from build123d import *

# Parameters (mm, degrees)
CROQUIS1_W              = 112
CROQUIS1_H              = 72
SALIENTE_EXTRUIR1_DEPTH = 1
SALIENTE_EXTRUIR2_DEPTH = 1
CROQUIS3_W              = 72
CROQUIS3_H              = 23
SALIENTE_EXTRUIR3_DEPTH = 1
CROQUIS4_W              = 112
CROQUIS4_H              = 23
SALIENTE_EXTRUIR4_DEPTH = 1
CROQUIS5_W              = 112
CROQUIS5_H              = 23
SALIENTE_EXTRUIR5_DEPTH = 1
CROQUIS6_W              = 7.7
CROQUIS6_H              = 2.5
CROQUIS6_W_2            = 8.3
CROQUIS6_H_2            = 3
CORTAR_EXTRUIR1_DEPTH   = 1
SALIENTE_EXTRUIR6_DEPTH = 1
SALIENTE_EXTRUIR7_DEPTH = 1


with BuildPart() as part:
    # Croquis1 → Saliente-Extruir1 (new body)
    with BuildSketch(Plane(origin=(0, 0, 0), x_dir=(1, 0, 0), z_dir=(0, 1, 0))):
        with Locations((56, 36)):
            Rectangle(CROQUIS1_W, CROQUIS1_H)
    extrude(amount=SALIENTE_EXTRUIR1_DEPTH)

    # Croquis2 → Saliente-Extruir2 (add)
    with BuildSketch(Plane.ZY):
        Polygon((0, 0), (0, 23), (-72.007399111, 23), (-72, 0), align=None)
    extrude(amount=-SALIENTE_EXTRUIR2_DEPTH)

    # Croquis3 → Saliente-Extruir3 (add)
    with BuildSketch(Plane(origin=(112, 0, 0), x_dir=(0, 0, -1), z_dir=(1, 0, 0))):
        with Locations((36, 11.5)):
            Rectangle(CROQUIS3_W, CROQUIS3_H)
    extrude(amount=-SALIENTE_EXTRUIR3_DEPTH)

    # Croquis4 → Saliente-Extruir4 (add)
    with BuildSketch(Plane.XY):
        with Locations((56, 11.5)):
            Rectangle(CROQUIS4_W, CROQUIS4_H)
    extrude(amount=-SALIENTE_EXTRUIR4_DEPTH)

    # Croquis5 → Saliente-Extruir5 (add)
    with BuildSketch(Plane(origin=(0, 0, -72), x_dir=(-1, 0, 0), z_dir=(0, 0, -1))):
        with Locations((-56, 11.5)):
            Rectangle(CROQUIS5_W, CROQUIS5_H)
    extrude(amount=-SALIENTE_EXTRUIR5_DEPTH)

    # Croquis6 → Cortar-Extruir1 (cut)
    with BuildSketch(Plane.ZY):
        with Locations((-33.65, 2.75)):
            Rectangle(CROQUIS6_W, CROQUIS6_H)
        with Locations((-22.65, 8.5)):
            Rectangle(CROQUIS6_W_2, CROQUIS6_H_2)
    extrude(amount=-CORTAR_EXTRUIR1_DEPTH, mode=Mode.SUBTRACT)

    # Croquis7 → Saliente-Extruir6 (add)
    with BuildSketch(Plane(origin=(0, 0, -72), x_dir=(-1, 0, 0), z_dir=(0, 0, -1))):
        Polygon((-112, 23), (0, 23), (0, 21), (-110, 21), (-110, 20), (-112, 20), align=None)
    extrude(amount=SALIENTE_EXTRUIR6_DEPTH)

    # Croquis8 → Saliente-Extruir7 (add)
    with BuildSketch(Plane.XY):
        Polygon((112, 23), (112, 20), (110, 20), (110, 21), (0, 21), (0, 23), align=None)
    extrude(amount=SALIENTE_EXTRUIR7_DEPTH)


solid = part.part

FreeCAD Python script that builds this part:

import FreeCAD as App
import Part
import Sketcher
from FreeCAD import Vector
Q = App.Units.Quantity

doc = App.newDocument("Part")
params = doc.addObject("Spreadsheet::Sheet", "Params")
for row, (alias, value) in enumerate([
    ("sketch1_width", "112 mm"),
    ("sketch1_height", "72 mm"),
    ("pad1_length", "1 mm"),
    ("sketch2_width", "23 mm"),
    ("sketch2_height", "72 mm"),
    ("pad2_length", "1 mm"),
    ("sketch3_width", "23 mm"),
    ("sketch3_height", "72 mm"),
    ("pad3_length", "1 mm"),
    ("sketch4_width", "112 mm"),
    ("sketch4_height", "23 mm"),
    ("pad4_length", "1 mm"),
    ("sketch5_width", "112 mm"),
    ("sketch5_height", "23 mm"),
    ("pad5_length", "1 mm"),
    ("sketch6_width", "3 mm"),
    ("sketch6_width2", "2.5 mm"),
    ("sketch6_height", "7.7 mm"),
    ("sketch6_height2", "8.3 mm"),
    ("pocket1_length", "1 mm"),
    ("sketch7_width", "112 mm"),
    ("sketch7_width2", "2 mm"),
    ("sketch7_height", "3 mm"),
    ("pad6_length", "1 mm"),
    ("sketch8_width", "112 mm"),
    ("sketch8_width2", "110 mm"),
    ("sketch8_height", "3 mm"),
    ("pad7_length", "1 mm"),
], start=1):
    params.set(f"A{row}", alias)
    params.set(f"B{row}", "=" + value)
    params.setAlias(f"B{row}", alias)

body = doc.addObject("PartDesign::Body", "Body")

# Sketch on XZ plane
sketch1 = body.newObject("Sketcher::SketchObject", "Sketch")
sketch1.AttachmentSupport = (doc.getObject("XZ_Plane"), [""])
sketch1.MapMode = "FlatFace"
sketch1.addGeometry([
    Part.LineSegment(Vector(0, -72, 0), Vector(0, 0, 0)),
    Part.LineSegment(Vector(0, 0, 0), Vector(112, 0, 0)),
    Part.LineSegment(Vector(112, 0, 0), Vector(112, -72, 0)),
    Part.LineSegment(Vector(112, -72, 0), Vector(0, -72, 0)),
], False)
sketch1.addConstraint([
    Sketcher.Constraint("Coincident", 0, 2, 1, 1),
    Sketcher.Constraint("Coincident", 1, 2, 2, 1),
    Sketcher.Constraint("Coincident", 2, 2, 3, 1),
    Sketcher.Constraint("Coincident", 3, 2, 0, 1),
    Sketcher.Constraint("Vertical", 0),
    Sketcher.Constraint("Horizontal", 1),
    Sketcher.Constraint("Vertical", 2),
    Sketcher.Constraint("Horizontal", 3),
    Sketcher.Constraint("Coincident", 0, 2, -1, 1),
    Sketcher.Constraint("DistanceX", 1, 1, 1, 2, Q("112 mm")),
    Sketcher.Constraint("DistanceY", 0, 1, 0, 2, Q("72 mm")),
])
sketch1.setExpression("Constraints[9]", "Params.sketch1_width")
sketch1.setExpression("Constraints[10]", "Params.sketch1_height")
pad1 = body.newObject("PartDesign::Pad", "Pad")
pad1.Profile = sketch1
pad1.setExpression("Length", "Params.pad1_length")
pad1.Reversed = True

# Sketch on YZ plane
sketch2 = body.newObject("Sketcher::SketchObject", "Sketch001")
sketch2.AttachmentSupport = (doc.getObject("YZ_Plane"), [""])
sketch2.MapMode = "FlatFace"
sketch2.addGeometry([
    Part.LineSegment(Vector(0, 0, 0), Vector(23, 0, 0)),
    Part.LineSegment(Vector(23, 0, 0), Vector(23, -72, 0)),
    Part.LineSegment(Vector(23, -72, 0), Vector(0, -72, 0)),
    Part.LineSegment(Vector(0, -72, 0), Vector(0, 0, 0)),
], False)
sketch2.addConstraint([
    Sketcher.Constraint("Coincident", 0, 2, 1, 1),
    Sketcher.Constraint("Coincident", 1, 2, 2, 1),
    Sketcher.Constraint("Coincident", 2, 2, 3, 1),
    Sketcher.Constraint("Coincident", 3, 2, 0, 1),
    Sketcher.Constraint("Horizontal", 0),
    Sketcher.Constraint("Vertical", 1),
    Sketcher.Constraint("Vertical", 3),
    Sketcher.Constraint("Coincident", 3, 2, -1, 1),
    Sketcher.Constraint("DistanceX", 0, 1, 0, 2, Q("23 mm")),
    Sketcher.Constraint("DistanceY", 3, 1, 3, 2, Q("72 mm")),
    Sketcher.Constraint("DistanceY", 1, 2, 1, 1, Q("72.007399 mm")),
])
sketch2.setExpression("Constraints[8]", "Params.sketch2_width")
sketch2.setExpression("Constraints[9]", "Params.sketch2_height")
pad2 = body.newObject("PartDesign::Pad", "Pad001")
pad2.Profile = sketch2
pad2.setExpression("Length", "Params.pad2_length")

# Sketch on YZ plane
sketch3 = body.newObject("Sketcher::SketchObject", "Sketch002")
sketch3.AttachmentSupport = (doc.getObject("YZ_Plane"), [""])
sketch3.MapMode = "FlatFace"
sketch3.AttachmentOffset = App.Placement(Vector(0, 0, 112), App.Rotation())
sketch3.addGeometry([
    Part.LineSegment(Vector(23, 0, 0), Vector(0, 0, 0)),
    Part.LineSegment(Vector(0, 0, 0), Vector(0, -72, 0)),
    Part.LineSegment(Vector(0, -72, 0), Vector(23, -72, 0)),
    Part.LineSegment(Vector(23, -72, 0), Vector(23, 0, 0)),
], False)
sketch3.addConstraint([
    Sketcher.Constraint("Coincident", 0, 2, 1, 1),
    Sketcher.Constraint("Coincident", 1, 2, 2, 1),
    Sketcher.Constraint("Coincident", 2, 2, 3, 1),
    Sketcher.Constraint("Coincident", 3, 2, 0, 1),
    Sketcher.Constraint("Horizontal", 0),
    Sketcher.Constraint("Vertical", 1),
    Sketcher.Constraint("Horizontal", 2),
    Sketcher.Constraint("Vertical", 3),
    Sketcher.Constraint("Coincident", 0, 2, -1, 1),
    Sketcher.Constraint("DistanceX", 0, 2, 0, 1, Q("23 mm")),
    Sketcher.Constraint("DistanceY", 1, 2, 1, 1, Q("72 mm")),
])
sketch3.setExpression("Constraints[9]", "Params.sketch3_width")
sketch3.setExpression("Constraints[10]", "Params.sketch3_height")
pad3 = body.newObject("PartDesign::Pad", "Pad002")
pad3.Profile = sketch3
pad3.setExpression("Length", "Params.pad3_length")
pad3.Reversed = True

# Sketch on XY plane
sketch4 = body.newObject("Sketcher::SketchObject", "Sketch003")
sketch4.AttachmentSupport = (doc.getObject("XY_Plane"), [""])
sketch4.MapMode = "FlatFace"
sketch4.addGeometry([
    Part.LineSegment(Vector(0, 23, 0), Vector(0, 0, 0)),
    Part.LineSegment(Vector(0, 0, 0), Vector(112, 0, 0)),
    Part.LineSegment(Vector(112, 0, 0), Vector(112, 23, 0)),
    Part.LineSegment(Vector(112, 23, 0), Vector(0, 23, 0)),
], False)
sketch4.addConstraint([
    Sketcher.Constraint("Coincident", 0, 2, 1, 1),
    Sketcher.Constraint("Coincident", 1, 2, 2, 1),
    Sketcher.Constraint("Coincident", 2, 2, 3, 1),
    Sketcher.Constraint("Coincident", 3, 2, 0, 1),
    Sketcher.Constraint("Vertical", 0),
    Sketcher.Constraint("Horizontal", 1),
    Sketcher.Constraint("Vertical", 2),
    Sketcher.Constraint("Horizontal", 3),
    Sketcher.Constraint("Coincident", 0, 2, -1, 1),
    Sketcher.Constraint("DistanceX", 1, 1, 1, 2, Q("112 mm")),
    Sketcher.Constraint("DistanceY", 0, 2, 0, 1, Q("23 mm")),
])
sketch4.setExpression("Constraints[9]", "Params.sketch4_width")
sketch4.setExpression("Constraints[10]", "Params.sketch4_height")
pad4 = body.newObject("PartDesign::Pad", "Pad003")
pad4.Profile = sketch4
pad4.setExpression("Length", "Params.pad4_length")
pad4.Reversed = True

# Sketch on XY plane
sketch5 = body.newObject("Sketcher::SketchObject", "Sketch004")
sketch5.AttachmentSupport = (doc.getObject("XY_Plane"), [""])
sketch5.MapMode = "FlatFace"
sketch5.AttachmentOffset = App.Placement(Vector(0, 0, -72), App.Rotation())
sketch5.addGeometry([
    Part.LineSegment(Vector(112, 23, 0), Vector(112, 0, 0)),
    Part.LineSegment(Vector(112, 0, 0), Vector(0, 0, 0)),
    Part.LineSegment(Vector(0, 0, 0), Vector(0, 23, 0)),
    Part.LineSegment(Vector(0, 23, 0), Vector(112, 23, 0)),
], False)
sketch5.addConstraint([
    Sketcher.Constraint("Coincident", 0, 2, 1, 1),
    Sketcher.Constraint("Coincident", 1, 2, 2, 1),
    Sketcher.Constraint("Coincident", 2, 2, 3, 1),
    Sketcher.Constraint("Coincident", 3, 2, 0, 1),
    Sketcher.Constraint("Vertical", 0),
    Sketcher.Constraint("Horizontal", 1),
    Sketcher.Constraint("Vertical", 2),
    Sketcher.Constraint("Horizontal", 3),
    Sketcher.Constraint("Coincident", 1, 2, -1, 1),
    Sketcher.Constraint("DistanceX", 1, 2, 1, 1, Q("112 mm")),
    Sketcher.Constraint("DistanceY", 0, 2, 0, 1, Q("23 mm")),
])
sketch5.setExpression("Constraints[9]", "Params.sketch5_width")
sketch5.setExpression("Constraints[10]", "Params.sketch5_height")
pad5 = body.newObject("PartDesign::Pad", "Pad004")
pad5.Profile = sketch5
pad5.setExpression("Length", "Params.pad5_length")

# Sketch on YZ plane
sketch6 = body.newObject("Sketcher::SketchObject", "Sketch005")
sketch6.AttachmentSupport = (doc.getObject("YZ_Plane"), [""])
sketch6.MapMode = "FlatFace"
sketch6.addGeometry([
    Part.LineSegment(Vector(4, -37.5, 0), Vector(1.5, -37.5, 0)),  # 0
    Part.LineSegment(Vector(1.5, -37.5, 0), Vector(1.5, -29.8, 0)),  # 1
    Part.LineSegment(Vector(1.5, -29.8, 0), Vector(4, -29.8, 0)),  # 2
    Part.LineSegment(Vector(4, -29.8, 0), Vector(4, -37.5, 0)),  # 3
    Part.LineSegment(Vector(10, -26.8, 0), Vector(7, -26.8, 0)),  # 4
    Part.LineSegment(Vector(7, -26.8, 0), Vector(7, -18.5, 0)),  # 5
    Part.LineSegment(Vector(7, -18.5, 0), Vector(10, -18.5, 0)),  # 6
    Part.LineSegment(Vector(10, -18.5, 0), Vector(10, -26.8, 0)),  # 7
], False)
sketch6.addConstraint([
    Sketcher.Constraint("Coincident", 0, 2, 1, 1),
    Sketcher.Constraint("Coincident", 1, 2, 2, 1),
    Sketcher.Constraint("Coincident", 2, 2, 3, 1),
    Sketcher.Constraint("Coincident", 3, 2, 0, 1),
    Sketcher.Constraint("Coincident", 4, 2, 5, 1),
    Sketcher.Constraint("Coincident", 5, 2, 6, 1),
    Sketcher.Constraint("Coincident", 6, 2, 7, 1),
    Sketcher.Constraint("Coincident", 7, 2, 4, 1),
    Sketcher.Constraint("Horizontal", 0),
    Sketcher.Constraint("Vertical", 1),
    Sketcher.Constraint("Horizontal", 2),
    Sketcher.Constraint("Vertical", 3),
    Sketcher.Constraint("Horizontal", 4),
    Sketcher.Constraint("Vertical", 5),
    Sketcher.Constraint("Horizontal", 6),
    Sketcher.Constraint("Vertical", 7),
    Sketcher.Constraint("DistanceX", 4, 2, 4, 1, Q("3 mm")),
    Sketcher.Constraint("DistanceX", 0, 2, 0, 1, Q("2.5 mm")),
    Sketcher.Constraint("DistanceY", 1, 1, 1, 2, Q("7.7 mm")),
    Sketcher.Constraint("DistanceY", 5, 1, 5, 2, Q("8.3 mm")),
    Sketcher.Constraint("DistanceX", -1, 1, 2, 2, Q("4 mm")),
    Sketcher.Constraint("DistanceX", -1, 1, 4, 2, Q("7 mm")),
    Sketcher.Constraint("DistanceY", 2, 2, 4, 2, Q("3 mm")),
    Sketcher.Constraint("DistanceY", 0, 2, -1, 1, Q("37.5 mm")),
])
sketch6.setExpression("Constraints[16]", "Params.sketch6_width")
sketch6.setExpression("Constraints[17]", "Params.sketch6_width2")
sketch6.setExpression("Constraints[18]", "Params.sketch6_height")
sketch6.setExpression("Constraints[19]", "Params.sketch6_height2")
pocket1 = body.newObject("PartDesign::Pocket", "Pocket")
pocket1.Profile = sketch6
pocket1.setExpression("Length", "Params.pocket1_length")
pocket1.Reversed = True

# Sketch on XY plane
sketch7 = body.newObject("Sketcher::SketchObject", "Sketch006")
sketch7.AttachmentSupport = (doc.getObject("XY_Plane"), [""])
sketch7.MapMode = "FlatFace"
sketch7.AttachmentOffset = App.Placement(Vector(0, 0, -72), App.Rotation())
sketch7.addGeometry([
    Part.LineSegment(Vector(0, 23, 0), Vector(112, 23, 0)),  # 0
    Part.LineSegment(Vector(112, 23, 0), Vector(112, 20, 0)),  # 1
    Part.LineSegment(Vector(112, 20, 0), Vector(110, 20, 0)),  # 2
    Part.LineSegment(Vector(110, 20, 0), Vector(110, 21, 0)),  # 3
    Part.LineSegment(Vector(110, 21, 0), Vector(0, 21, 0)),  # 4
    Part.LineSegment(Vector(0, 21, 0), Vector(0, 23, 0)),  # 5
], False)
sketch7.addConstraint([
    Sketcher.Constraint("Coincident", 0, 2, 1, 1),
    Sketcher.Constraint("Coincident", 1, 2, 2, 1),
    Sketcher.Constraint("Coincident", 2, 2, 3, 1),
    Sketcher.Constraint("Coincident", 3, 2, 4, 1),
    Sketcher.Constraint("Coincident", 4, 2, 5, 1),
    Sketcher.Constraint("Coincident", 5, 2, 0, 1),
    Sketcher.Constraint("Horizontal", 0),
    Sketcher.Constraint("Vertical", 1),
    Sketcher.Constraint("Horizontal", 2),
    Sketcher.Constraint("Vertical", 3),
    Sketcher.Constraint("Horizontal", 4),
    Sketcher.Constraint("Vertical", 5),
    Sketcher.Constraint("PointOnObject", 4, 2, -2),
    Sketcher.Constraint("Equal", 2, 5),
    Sketcher.Constraint("DistanceX", 0, 1, 0, 2, Q("112 mm")),
    Sketcher.Constraint("DistanceX", 2, 2, 2, 1, Q("2 mm")),
    Sketcher.Constraint("DistanceY", 1, 2, 1, 1, Q("3 mm")),
    Sketcher.Constraint("DistanceY", -1, 1, 0, 2, Q("23 mm")),
])
sketch7.setExpression("Constraints[14]", "Params.sketch7_width")
sketch7.setExpression("Constraints[15]", "Params.sketch7_width2")
sketch7.setExpression("Constraints[16]", "Params.sketch7_height")
pad6 = body.newObject("PartDesign::Pad", "Pad005")
pad6.Profile = sketch7
pad6.setExpression("Length", "Params.pad6_length")
pad6.Reversed = True

# Sketch on XY plane
sketch8 = body.newObject("Sketcher::SketchObject", "Sketch007")
sketch8.AttachmentSupport = (doc.getObject("XY_Plane"), [""])
sketch8.MapMode = "FlatFace"
sketch8.addGeometry([
    Part.LineSegment(Vector(112, 20, 0), Vector(112, 23, 0)),  # 0
    Part.LineSegment(Vector(112, 23, 0), Vector(0, 23, 0)),  # 1
    Part.LineSegment(Vector(0, 23, 0), Vector(0, 21, 0)),  # 2
    Part.LineSegment(Vector(0, 21, 0), Vector(110, 21, 0)),  # 3
    Part.LineSegment(Vector(110, 21, 0), Vector(110, 20, 0)),  # 4
    Part.LineSegment(Vector(110, 20, 0), Vector(112, 20, 0)),  # 5
], False)
sketch8.addConstraint([
    Sketcher.Constraint("Coincident", 0, 2, 1, 1),
    Sketcher.Constraint("Coincident", 1, 2, 2, 1),
    Sketcher.Constraint("Coincident", 2, 2, 3, 1),
    Sketcher.Constraint("Coincident", 3, 2, 4, 1),
    Sketcher.Constraint("Coincident", 4, 2, 5, 1),
    Sketcher.Constraint("Coincident", 5, 2, 0, 1),
    Sketcher.Constraint("Vertical", 0),
    Sketcher.Constraint("Horizontal", 1),
    Sketcher.Constraint("Vertical", 2),
    Sketcher.Constraint("Horizontal", 3),
    Sketcher.Constraint("Vertical", 4),
    Sketcher.Constraint("Horizontal", 5),
    Sketcher.Constraint("PointOnObject", 1, 2, -2),
    Sketcher.Constraint("Equal", 5, 2),
    Sketcher.Constraint("DistanceX", 1, 2, 1, 1, Q("112 mm")),
    Sketcher.Constraint("DistanceX", 3, 1, 3, 2, Q("110 mm")),
    Sketcher.Constraint("DistanceY", 0, 1, 0, 2, Q("3 mm")),
    Sketcher.Constraint("DistanceY", -1, 1, 0, 2, Q("23 mm")),
])
sketch8.setExpression("Constraints[14]", "Params.sketch8_width")
sketch8.setExpression("Constraints[15]", "Params.sketch8_width2")
sketch8.setExpression("Constraints[16]", "Params.sketch8_height")
pad7 = body.newObject("PartDesign::Pad", "Pad006")
pad7.Profile = sketch8
pad7.setExpression("Length", "Params.pad7_length")

doc.recompute()
